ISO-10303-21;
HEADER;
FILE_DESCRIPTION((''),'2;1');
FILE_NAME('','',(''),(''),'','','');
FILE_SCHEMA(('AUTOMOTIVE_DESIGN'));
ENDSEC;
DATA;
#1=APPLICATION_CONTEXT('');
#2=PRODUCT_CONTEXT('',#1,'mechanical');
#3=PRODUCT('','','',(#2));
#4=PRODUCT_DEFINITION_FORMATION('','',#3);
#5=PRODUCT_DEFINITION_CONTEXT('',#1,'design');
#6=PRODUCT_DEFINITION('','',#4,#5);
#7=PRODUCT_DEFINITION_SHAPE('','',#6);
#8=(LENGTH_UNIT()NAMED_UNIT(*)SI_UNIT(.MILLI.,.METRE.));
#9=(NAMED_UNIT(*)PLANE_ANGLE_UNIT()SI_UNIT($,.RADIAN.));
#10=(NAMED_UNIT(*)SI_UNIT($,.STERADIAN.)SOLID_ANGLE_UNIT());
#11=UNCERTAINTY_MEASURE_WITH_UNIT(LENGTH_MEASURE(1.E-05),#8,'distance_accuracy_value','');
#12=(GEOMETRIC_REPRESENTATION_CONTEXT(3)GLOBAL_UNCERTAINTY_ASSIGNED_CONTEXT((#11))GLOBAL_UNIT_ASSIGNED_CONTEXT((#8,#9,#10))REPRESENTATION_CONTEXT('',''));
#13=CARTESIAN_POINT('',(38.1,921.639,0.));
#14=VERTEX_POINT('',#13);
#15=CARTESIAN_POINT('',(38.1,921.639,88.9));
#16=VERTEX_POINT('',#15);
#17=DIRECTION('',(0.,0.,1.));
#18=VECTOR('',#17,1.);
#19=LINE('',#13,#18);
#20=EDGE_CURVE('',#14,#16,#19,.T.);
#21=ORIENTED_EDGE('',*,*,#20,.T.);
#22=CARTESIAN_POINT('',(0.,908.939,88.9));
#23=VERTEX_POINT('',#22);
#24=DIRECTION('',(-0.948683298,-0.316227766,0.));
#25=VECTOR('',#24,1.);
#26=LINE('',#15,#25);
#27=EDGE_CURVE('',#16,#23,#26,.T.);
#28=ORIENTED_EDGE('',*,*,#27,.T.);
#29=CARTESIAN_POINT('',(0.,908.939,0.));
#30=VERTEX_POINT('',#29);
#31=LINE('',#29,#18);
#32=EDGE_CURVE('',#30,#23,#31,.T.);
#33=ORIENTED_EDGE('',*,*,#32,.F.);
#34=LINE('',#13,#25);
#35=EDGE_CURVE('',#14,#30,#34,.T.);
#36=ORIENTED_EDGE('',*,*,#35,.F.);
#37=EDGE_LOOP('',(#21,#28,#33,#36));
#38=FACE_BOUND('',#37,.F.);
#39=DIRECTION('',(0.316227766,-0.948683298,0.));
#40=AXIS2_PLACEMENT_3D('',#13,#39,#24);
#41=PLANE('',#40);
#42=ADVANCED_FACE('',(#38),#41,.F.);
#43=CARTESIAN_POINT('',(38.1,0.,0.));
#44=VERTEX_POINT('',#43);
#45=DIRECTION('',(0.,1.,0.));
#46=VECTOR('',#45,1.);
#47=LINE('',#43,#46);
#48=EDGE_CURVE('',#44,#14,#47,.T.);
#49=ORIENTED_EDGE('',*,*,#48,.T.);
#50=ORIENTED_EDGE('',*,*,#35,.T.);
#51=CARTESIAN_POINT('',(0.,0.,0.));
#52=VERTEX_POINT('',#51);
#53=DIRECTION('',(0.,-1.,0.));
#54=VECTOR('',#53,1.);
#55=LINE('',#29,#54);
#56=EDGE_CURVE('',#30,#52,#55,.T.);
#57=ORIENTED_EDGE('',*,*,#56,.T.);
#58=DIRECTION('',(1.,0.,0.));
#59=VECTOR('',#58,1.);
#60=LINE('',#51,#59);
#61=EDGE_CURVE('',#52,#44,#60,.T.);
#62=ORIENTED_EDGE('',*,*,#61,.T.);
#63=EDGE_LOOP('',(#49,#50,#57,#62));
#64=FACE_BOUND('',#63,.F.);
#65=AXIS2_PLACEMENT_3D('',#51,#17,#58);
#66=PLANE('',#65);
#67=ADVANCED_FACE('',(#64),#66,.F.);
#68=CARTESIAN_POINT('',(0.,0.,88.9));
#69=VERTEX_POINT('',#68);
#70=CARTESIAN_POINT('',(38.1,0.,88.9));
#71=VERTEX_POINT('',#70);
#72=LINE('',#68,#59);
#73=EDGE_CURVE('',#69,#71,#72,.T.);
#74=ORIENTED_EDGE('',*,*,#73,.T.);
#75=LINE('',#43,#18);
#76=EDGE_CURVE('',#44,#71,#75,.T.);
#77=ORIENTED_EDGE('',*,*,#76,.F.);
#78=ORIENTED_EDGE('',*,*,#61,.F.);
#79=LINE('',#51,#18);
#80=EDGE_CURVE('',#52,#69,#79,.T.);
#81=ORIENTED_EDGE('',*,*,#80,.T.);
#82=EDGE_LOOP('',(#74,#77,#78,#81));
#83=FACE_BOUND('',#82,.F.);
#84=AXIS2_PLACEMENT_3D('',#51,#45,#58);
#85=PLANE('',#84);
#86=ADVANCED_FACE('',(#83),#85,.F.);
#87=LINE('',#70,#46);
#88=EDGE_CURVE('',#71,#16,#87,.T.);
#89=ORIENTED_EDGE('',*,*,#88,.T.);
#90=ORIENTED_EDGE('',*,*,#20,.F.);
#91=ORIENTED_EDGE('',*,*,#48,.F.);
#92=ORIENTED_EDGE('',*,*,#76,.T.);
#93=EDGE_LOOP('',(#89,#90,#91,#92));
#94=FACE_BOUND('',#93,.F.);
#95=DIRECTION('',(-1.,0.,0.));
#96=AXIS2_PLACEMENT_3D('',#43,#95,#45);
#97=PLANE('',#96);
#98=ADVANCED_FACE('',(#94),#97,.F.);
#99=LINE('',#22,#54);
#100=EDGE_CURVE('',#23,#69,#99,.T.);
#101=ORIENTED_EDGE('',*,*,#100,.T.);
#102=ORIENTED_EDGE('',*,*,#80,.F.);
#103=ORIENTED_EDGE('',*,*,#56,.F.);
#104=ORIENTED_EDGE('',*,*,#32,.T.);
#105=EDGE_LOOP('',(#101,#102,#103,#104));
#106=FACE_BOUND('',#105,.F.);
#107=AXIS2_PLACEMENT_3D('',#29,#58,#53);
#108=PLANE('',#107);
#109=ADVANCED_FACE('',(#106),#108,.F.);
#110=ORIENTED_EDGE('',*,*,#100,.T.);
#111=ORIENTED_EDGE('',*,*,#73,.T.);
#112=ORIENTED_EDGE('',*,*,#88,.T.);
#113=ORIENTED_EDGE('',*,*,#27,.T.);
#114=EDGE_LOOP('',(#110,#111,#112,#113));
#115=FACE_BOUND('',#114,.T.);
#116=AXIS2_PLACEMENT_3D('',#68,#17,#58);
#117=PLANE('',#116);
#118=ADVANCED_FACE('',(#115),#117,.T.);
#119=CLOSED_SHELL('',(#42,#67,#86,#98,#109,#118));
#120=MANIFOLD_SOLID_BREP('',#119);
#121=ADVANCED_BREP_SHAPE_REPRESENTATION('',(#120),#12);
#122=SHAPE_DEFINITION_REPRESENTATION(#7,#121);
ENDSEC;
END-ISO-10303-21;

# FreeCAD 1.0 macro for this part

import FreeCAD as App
import Part
import Sketcher

V = App.Vector
Q = App.Units.Quantity

doc = App.newDocument("Part")
body = doc.addObject("PartDesign::Body", "Body")

sketch1 = body.newObject("Sketcher::SketchObject", "Sketch")
sketch1.AttachmentSupport = (doc.getObject("XY_Plane"), [""])
sketch1.MapMode = "FlatFace"
sketch1.addGeometry(Part.LineSegment(V(0, 909, 0), V(0, 0, 0)), False)
sketch1.addGeometry(Part.LineSegment(V(0, 0, 0), V(38, 0, 0)), False)
sketch1.addGeometry(Part.LineSegment(V(38, 0, 0), V(38, 922, 0)), False)
sketch1.addGeometry(Part.LineSegment(V(38, 922, 0), V(0, 909, 0)), False)
sketch1.addConstraint(Sketcher.Constraint("Coincident", 0, 2, 1, 1))
sketch1.addConstraint(Sketcher.Constraint("Coincident", 1, 2, 2, 1))
sketch1.addConstraint(Sketcher.Constraint("Coincident", 2, 2, 3, 1))
sketch1.addConstraint(Sketcher.Constraint("Coincident", 3, 2, 0, 1))
sketch1.addConstraint(Sketcher.Constraint("Vertical", 0))
sketch1.addConstraint(Sketcher.Constraint("Horizontal", 1))
sketch1.addConstraint(Sketcher.Constraint("Vertical", 2))
sketch1.addConstraint(Sketcher.Constraint("Coincident", 0, 2, -1, 1))
sketch1.addConstraint(Sketcher.Constraint("DistanceX", 1, 1, 1, 2, Q("1.5 in")))
sketch1.addConstraint(Sketcher.Constraint("DistanceY", 0, 2, 0, 1, Q("35.785 in")))
sketch1.addConstraint(Sketcher.Constraint("DistanceY", 2, 1, 2, 2, Q("36.285 in")))
pad1 = body.newObject("PartDesign::Pad", "Pad")
pad1.Profile = sketch1
pad1.Length = Q("3.5 in")

doc.recompute()
